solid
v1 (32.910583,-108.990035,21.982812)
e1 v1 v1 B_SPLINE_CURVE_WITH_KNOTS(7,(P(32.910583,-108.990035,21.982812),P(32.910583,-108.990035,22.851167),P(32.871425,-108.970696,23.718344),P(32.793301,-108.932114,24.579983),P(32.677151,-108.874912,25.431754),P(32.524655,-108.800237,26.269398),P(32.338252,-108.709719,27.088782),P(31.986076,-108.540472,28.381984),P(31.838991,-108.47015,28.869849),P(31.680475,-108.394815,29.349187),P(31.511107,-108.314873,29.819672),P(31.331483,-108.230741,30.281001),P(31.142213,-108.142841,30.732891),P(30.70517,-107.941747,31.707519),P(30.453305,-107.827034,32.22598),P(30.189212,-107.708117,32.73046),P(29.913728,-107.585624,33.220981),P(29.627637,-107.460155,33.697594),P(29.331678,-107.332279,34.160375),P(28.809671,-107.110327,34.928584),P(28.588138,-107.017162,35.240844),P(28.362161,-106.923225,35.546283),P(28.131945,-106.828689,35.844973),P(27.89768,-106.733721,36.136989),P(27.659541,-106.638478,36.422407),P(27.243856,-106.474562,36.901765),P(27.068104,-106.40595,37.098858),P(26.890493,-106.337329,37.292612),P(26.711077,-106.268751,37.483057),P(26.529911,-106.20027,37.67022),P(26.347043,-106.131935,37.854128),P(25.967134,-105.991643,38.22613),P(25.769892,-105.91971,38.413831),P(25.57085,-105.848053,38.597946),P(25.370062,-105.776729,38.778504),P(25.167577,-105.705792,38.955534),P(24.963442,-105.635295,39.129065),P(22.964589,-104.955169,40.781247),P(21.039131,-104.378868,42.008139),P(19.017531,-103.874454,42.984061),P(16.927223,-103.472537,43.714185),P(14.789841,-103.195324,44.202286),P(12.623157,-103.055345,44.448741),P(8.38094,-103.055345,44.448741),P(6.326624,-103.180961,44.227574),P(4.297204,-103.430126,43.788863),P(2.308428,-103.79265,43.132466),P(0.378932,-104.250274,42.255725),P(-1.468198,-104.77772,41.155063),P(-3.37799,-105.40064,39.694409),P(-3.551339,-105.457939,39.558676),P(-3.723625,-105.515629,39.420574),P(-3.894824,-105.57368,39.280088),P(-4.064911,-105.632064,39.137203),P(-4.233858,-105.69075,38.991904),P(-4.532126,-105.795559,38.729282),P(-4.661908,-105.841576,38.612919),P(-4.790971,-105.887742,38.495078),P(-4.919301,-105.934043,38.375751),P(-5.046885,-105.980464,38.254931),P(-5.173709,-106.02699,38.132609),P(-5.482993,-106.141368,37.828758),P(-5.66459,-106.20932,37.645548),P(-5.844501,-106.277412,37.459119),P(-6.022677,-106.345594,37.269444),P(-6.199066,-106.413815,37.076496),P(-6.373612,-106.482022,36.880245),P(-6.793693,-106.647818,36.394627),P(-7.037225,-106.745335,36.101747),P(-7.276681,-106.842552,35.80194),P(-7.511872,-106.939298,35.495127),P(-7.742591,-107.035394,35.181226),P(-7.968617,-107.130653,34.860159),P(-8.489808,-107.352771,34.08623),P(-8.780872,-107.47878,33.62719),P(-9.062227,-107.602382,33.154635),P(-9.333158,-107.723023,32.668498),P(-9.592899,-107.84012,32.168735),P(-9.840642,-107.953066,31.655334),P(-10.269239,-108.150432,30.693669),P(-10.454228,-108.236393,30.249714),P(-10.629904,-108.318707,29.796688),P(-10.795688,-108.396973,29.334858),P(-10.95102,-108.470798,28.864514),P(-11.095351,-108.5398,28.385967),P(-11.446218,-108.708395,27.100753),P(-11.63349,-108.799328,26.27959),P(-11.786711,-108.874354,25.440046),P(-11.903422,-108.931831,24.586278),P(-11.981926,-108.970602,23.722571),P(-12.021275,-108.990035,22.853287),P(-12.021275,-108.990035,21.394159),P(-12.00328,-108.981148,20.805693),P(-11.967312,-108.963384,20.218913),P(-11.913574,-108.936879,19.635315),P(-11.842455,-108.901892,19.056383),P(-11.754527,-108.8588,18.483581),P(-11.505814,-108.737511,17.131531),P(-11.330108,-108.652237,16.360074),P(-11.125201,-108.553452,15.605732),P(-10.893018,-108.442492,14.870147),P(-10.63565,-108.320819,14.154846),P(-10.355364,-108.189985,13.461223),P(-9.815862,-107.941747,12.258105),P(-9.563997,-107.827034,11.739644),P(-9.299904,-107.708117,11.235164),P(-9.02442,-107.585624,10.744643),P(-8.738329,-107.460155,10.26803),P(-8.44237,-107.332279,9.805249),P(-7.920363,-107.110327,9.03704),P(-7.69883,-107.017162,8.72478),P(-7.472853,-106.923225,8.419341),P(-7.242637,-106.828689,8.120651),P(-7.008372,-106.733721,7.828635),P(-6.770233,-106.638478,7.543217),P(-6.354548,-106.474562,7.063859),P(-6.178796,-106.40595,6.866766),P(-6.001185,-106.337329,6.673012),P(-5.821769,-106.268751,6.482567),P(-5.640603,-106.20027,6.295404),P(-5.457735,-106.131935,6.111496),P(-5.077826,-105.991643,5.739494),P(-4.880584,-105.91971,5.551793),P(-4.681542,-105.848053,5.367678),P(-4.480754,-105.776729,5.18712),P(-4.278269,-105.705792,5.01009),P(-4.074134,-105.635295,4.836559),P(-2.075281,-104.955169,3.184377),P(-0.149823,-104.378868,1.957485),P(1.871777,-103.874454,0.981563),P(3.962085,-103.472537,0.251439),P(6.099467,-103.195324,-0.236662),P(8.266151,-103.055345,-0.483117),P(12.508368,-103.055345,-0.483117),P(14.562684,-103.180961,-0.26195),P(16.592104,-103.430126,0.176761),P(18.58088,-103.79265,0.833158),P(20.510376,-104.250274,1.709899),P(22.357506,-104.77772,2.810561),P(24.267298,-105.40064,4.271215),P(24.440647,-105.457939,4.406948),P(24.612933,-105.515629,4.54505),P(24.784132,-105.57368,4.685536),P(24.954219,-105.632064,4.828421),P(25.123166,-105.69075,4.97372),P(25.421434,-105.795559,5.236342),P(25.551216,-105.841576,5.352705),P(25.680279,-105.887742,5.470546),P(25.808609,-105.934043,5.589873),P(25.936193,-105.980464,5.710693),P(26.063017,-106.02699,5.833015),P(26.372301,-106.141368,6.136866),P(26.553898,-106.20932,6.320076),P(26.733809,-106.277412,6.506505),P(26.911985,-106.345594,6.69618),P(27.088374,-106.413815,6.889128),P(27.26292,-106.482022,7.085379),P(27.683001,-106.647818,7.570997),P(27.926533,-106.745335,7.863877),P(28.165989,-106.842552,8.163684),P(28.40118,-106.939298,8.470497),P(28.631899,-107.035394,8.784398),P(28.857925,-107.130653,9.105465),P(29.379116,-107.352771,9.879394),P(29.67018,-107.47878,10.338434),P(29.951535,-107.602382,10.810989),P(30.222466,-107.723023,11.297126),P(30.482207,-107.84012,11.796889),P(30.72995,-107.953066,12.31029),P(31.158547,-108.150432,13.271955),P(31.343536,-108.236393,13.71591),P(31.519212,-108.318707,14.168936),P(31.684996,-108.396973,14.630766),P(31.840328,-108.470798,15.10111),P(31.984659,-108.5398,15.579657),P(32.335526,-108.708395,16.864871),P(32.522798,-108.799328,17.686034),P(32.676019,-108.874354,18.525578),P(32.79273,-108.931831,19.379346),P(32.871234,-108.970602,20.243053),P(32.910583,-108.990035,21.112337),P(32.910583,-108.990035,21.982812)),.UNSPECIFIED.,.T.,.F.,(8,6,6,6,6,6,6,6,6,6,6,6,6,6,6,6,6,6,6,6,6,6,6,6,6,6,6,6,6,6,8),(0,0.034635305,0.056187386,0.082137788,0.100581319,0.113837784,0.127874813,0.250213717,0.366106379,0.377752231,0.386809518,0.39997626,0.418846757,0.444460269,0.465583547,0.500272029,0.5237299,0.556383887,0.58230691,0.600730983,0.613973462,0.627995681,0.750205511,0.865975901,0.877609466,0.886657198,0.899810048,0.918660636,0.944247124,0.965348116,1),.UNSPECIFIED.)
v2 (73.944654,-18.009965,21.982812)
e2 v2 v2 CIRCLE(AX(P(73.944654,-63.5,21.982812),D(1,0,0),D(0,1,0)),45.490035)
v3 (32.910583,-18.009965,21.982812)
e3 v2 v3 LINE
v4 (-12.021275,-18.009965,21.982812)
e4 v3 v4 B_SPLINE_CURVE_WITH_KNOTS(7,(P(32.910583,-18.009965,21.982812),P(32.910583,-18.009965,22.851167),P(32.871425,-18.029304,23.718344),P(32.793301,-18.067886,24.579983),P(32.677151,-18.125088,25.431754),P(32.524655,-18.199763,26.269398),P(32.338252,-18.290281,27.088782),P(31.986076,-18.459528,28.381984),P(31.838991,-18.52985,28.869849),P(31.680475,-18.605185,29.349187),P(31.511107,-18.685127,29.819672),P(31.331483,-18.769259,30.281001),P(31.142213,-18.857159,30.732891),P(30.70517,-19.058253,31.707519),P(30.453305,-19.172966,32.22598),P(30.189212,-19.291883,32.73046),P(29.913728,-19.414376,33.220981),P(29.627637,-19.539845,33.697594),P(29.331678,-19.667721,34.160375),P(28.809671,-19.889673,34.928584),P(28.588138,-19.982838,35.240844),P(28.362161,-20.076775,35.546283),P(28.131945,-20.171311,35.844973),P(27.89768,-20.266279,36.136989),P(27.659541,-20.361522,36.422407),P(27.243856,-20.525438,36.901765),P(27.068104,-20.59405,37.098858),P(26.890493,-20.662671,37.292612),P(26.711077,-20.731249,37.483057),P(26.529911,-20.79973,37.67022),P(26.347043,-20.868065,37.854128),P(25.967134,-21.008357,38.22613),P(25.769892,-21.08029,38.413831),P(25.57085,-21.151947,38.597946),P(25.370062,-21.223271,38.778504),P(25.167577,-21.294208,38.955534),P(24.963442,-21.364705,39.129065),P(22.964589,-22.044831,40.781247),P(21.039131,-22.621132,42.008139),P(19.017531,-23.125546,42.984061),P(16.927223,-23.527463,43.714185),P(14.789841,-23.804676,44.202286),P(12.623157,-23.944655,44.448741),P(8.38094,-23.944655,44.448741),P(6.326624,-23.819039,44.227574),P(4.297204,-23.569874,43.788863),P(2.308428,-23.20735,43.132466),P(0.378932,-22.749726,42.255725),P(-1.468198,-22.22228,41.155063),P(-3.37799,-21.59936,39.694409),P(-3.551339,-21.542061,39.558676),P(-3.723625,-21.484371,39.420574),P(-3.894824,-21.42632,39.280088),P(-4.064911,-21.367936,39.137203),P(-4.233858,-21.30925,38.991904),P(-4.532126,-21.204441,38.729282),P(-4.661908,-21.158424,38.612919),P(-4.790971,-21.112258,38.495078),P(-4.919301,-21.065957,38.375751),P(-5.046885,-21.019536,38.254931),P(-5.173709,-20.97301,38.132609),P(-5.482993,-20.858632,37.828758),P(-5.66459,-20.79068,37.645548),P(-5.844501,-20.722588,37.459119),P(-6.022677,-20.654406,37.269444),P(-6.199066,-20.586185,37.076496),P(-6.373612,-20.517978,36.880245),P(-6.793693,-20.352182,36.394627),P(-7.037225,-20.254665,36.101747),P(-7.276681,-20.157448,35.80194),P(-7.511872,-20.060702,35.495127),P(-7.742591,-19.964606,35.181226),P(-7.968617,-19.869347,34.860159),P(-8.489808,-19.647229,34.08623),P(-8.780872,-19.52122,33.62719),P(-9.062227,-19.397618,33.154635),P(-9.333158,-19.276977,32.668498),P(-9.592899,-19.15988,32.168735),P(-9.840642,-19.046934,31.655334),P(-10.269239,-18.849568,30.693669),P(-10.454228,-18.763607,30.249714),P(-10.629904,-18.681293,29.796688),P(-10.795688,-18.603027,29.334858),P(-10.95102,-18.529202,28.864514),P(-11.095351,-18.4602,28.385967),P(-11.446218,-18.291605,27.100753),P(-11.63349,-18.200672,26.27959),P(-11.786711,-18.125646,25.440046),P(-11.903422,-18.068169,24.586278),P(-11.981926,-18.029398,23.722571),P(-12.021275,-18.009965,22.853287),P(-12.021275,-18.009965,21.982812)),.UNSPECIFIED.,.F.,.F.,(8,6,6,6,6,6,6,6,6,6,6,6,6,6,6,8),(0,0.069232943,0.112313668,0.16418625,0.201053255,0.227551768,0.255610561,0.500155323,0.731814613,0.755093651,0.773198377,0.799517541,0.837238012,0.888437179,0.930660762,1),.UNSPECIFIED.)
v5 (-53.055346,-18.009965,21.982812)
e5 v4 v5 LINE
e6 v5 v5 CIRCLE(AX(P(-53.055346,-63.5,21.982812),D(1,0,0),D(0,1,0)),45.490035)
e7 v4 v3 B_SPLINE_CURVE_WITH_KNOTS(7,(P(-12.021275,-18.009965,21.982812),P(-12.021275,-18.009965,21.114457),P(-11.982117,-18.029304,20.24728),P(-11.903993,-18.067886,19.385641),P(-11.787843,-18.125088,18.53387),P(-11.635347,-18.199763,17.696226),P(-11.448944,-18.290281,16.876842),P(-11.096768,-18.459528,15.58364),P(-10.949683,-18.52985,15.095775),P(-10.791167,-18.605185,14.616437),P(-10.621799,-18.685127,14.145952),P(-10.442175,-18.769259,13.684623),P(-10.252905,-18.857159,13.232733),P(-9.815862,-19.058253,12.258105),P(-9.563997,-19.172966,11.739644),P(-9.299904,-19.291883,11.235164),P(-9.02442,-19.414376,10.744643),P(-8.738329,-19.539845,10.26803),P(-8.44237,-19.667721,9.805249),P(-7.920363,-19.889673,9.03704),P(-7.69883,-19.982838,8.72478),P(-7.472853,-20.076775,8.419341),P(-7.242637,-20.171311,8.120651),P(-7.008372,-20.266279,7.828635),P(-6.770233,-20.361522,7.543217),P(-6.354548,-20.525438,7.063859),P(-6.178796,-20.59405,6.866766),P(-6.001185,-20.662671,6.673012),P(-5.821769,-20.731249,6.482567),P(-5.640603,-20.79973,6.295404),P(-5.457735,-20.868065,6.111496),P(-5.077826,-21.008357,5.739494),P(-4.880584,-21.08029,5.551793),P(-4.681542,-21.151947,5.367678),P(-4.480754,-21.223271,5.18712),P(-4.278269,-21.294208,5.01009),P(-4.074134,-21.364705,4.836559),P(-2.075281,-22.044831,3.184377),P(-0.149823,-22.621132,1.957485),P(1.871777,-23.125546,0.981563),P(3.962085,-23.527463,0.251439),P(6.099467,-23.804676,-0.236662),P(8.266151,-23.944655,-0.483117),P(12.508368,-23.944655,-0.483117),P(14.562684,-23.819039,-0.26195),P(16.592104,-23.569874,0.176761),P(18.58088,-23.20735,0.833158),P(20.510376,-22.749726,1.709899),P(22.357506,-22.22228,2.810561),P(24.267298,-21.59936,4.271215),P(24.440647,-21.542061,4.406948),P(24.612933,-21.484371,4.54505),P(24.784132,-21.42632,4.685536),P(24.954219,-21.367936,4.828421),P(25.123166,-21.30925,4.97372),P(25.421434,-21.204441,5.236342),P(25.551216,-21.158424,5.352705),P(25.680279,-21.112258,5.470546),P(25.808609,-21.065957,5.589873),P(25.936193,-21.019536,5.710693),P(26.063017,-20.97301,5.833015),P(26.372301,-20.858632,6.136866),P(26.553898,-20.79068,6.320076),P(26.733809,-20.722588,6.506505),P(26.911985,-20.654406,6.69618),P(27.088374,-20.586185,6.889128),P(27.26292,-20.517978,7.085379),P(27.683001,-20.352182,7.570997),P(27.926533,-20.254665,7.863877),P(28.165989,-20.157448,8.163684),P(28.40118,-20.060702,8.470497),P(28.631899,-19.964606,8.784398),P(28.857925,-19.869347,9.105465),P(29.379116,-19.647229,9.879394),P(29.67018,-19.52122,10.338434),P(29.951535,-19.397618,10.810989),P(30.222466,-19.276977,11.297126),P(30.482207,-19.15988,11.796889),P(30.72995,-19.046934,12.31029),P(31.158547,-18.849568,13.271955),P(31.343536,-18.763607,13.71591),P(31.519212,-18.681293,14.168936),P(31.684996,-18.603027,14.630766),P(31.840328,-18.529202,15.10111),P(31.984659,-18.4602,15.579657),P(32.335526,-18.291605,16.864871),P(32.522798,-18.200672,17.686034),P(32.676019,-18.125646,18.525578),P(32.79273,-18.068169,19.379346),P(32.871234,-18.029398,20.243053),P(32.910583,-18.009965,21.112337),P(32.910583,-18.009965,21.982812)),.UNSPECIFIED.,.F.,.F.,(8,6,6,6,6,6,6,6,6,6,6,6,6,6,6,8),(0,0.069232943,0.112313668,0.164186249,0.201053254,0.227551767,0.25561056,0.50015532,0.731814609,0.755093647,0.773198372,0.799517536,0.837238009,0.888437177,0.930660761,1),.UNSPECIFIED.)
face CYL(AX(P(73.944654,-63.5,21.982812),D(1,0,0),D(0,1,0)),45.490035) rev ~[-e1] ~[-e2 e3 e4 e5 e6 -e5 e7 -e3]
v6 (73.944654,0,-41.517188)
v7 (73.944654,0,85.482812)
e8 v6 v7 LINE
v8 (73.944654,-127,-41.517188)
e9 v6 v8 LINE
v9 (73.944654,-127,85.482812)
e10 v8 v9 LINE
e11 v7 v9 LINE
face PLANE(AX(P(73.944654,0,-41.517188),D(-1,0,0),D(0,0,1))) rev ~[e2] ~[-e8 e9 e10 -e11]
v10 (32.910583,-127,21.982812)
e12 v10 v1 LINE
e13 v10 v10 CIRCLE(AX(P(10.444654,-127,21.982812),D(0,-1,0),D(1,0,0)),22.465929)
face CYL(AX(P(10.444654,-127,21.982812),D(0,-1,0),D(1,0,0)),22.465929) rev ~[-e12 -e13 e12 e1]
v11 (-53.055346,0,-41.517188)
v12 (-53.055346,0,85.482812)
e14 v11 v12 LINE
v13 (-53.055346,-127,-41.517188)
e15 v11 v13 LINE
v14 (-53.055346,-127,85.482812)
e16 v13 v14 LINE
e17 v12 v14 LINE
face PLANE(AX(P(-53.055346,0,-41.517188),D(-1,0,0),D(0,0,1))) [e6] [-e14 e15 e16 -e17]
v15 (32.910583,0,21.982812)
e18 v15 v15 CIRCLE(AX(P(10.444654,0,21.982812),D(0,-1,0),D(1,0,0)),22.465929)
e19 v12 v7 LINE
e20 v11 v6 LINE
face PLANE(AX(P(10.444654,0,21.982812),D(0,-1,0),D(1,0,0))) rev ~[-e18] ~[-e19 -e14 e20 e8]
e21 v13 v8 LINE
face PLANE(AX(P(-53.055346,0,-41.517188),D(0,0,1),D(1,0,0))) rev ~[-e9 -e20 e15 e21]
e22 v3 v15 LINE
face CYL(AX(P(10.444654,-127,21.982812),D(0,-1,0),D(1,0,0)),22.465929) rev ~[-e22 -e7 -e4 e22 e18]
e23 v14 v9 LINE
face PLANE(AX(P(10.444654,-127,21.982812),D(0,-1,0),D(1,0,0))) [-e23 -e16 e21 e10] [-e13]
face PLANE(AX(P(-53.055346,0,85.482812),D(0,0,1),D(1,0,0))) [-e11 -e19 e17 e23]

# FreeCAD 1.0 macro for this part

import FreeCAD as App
import Part
import Sketcher
Q = App.Units.Quantity

doc = App.newDocument("Part")
body = doc.addObject("PartDesign::Body", "Body")

# Sketch on XZ plane
sketch1 = body.newObject("Sketcher::SketchObject", "Sketch")
sketch1.AttachmentSupport = (doc.getObject("XZ_Plane"), [""])
sketch1.MapMode = "FlatFace"
sketch1.addGeometry([
    Part.LineSegment(App.Vector(-53.055346, 85.482812, 0), App.Vector(-53.055346, -41.517188, 0)),
    Part.LineSegment(App.Vector(-53.055346, -41.517188, 0), App.Vector(73.944654, -41.517188, 0)),
    Part.LineSegment(App.Vector(73.944654, -41.517188, 0), App.Vector(73.944654, 85.482812, 0)),
    Part.LineSegment(App.Vector(73.944654, 85.482812, 0), App.Vector(-53.055346, 85.482812, 0)),
], False)
sketch1.addConstraint([
    Sketcher.Constraint("Coincident", 0, 2, 1, 1),
    Sketcher.Constraint("Coincident", 1, 2, 2, 1),
    Sketcher.Constraint("Coincident", 2, 2, 3, 1),
    Sketcher.Constraint("Coincident", 3, 2, 0, 1),
    Sketcher.Constraint("Vertical", 0),
    Sketcher.Constraint("Horizontal", 1),
    Sketcher.Constraint("Vertical", 2),
    Sketcher.Constraint("Horizontal", 3),
    Sketcher.Constraint("Equal", 3, 0),
    Sketcher.Constraint("DistanceX", 1, 1, 1, 2, Q("5 in")),
    Sketcher.Constraint("DistanceY", -1, 1, 2, 2, 85.482812),
    Sketcher.Constraint("DistanceX", 0, 2, -1, 1, 53.055346),
])
pad1 = body.newObject("PartDesign::Pad", "Pad")
pad1.Profile = sketch1
pad1.Length = Q("5 in")

# Sketch on XZ plane
sketch2 = body.newObject("Sketcher::SketchObject", "Sketch001")
sketch2.AttachmentSupport = (doc.getObject("XZ_Plane"), [""])
sketch2.MapMode = "FlatFace"
sketch2.AttachmentOffset = App.Placement(App.Vector(0, 0, 5 * 25.4), App.Rotation())
sketch2.addGeometry(Part.Circle(App.Vector(10.444654, 21.982812, 0), App.Vector(0, 0, 1), 22.465929), False)
sketch2.addConstraint([
    Sketcher.Constraint("Diameter", 0, 44.931858),
    Sketcher.Constraint("DistanceY", -1, 1, 0, 3, 21.982812),
    Sketcher.Constraint("DistanceX", -1, 1, 0, 3, 10.444654),
])
pocket1 = body.newObject("PartDesign::Pocket", "Pocket")
pocket1.Profile = sketch2
pocket1.Length = Q("5.71 in")

# Sketch on YZ plane
sketch3 = body.newObject("Sketcher::SketchObject", "Sketch002")
sketch3.AttachmentSupport = (doc.getObject("YZ_Plane"), [""])
sketch3.MapMode = "FlatFace"
sketch3.AttachmentOffset = App.Placement(App.Vector(0, 0, 73.944654), App.Rotation())
sketch3.addGeometry(Part.Circle(App.Vector(-63.5, 21.982812, 0), App.Vector(0, 0, 1), 45.490035), False)
sketch3.addConstraint([
    Sketcher.Constraint("DistanceX", 0, 3, -1, 1, Q("2.5 in")),
    Sketcher.Constraint("Diameter", 0, 90.98007),
    Sketcher.Constraint("DistanceY", -1, 1, 0, 3, 21.982812),
])
pocket2 = body.newObject("PartDesign::Pocket", "Pocket001")
pocket2.Profile = sketch3
pocket2.Length = Q("5.57 in")

doc.recompute()
